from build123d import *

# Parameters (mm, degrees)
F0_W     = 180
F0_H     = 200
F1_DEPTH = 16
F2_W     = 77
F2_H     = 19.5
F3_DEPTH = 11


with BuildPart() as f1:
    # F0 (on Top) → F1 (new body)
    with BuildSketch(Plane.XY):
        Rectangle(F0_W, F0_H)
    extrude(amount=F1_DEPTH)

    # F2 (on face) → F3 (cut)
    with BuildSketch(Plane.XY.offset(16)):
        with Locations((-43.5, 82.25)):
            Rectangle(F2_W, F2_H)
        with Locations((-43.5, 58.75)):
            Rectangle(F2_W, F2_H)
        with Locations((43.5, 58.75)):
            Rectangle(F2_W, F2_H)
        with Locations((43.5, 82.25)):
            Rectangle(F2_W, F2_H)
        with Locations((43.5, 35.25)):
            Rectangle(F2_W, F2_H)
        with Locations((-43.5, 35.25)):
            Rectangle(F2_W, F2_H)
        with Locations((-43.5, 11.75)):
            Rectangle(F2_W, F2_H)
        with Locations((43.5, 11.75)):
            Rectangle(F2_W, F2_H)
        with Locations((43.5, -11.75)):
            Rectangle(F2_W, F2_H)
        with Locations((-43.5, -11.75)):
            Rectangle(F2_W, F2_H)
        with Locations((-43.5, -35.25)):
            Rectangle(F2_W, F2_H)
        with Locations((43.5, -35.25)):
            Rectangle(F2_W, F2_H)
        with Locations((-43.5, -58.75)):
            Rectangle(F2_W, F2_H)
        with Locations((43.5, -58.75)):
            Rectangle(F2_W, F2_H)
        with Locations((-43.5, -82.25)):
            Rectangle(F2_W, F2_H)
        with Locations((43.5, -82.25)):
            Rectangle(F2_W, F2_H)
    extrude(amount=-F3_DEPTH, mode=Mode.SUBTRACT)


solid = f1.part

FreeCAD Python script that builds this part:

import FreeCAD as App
import Part
import Sketcher
from FreeCAD import Vector

doc = App.newDocument("Part")
body = doc.addObject("PartDesign::Body", "Body")

sketch1 = doc.addObject("Sketcher::SketchObject", "Sketch")
body.addObject(sketch1)
sketch1.AttachmentSupport = (doc.XY_Plane, [""])
sketch1.MapMode = "FlatFace"
sketch1.addGeometry([
    Part.LineSegment(Vector(-90, 100, 0), Vector(-90, -100, 0)),
    Part.LineSegment(Vector(-90, -100, 0), Vector(90, -100, 0)),
    Part.LineSegment(Vector(90, -100, 0), Vector(90, 100, 0)),
    Part.LineSegment(Vector(90, 100, 0), Vector(-90, 100, 0)),
], False)
sketch1.addConstraint([
    Sketcher.Constraint("Coincident", 0, 2, 1, 1),
    Sketcher.Constraint("Coincident", 1, 2, 2, 1),
    Sketcher.Constraint("Coincident", 2, 2, 3, 1),
    Sketcher.Constraint("Coincident", 3, 2, 0, 1),
    Sketcher.Constraint("Vertical", 0),
    Sketcher.Constraint("Horizontal", 1),
    Sketcher.Constraint("Vertical", 2),
    Sketcher.Constraint("Horizontal", 3),
    Sketcher.Constraint("Symmetric", 0, 2, 2, 2, -1, 1),
    Sketcher.Constraint("DistanceX", 1, 1, 1, 2, 180.0),
    Sketcher.Constraint("DistanceY", 0, 2, 0, 1, 200.0),
])
pad1 = doc.addObject("PartDesign::Pad", "Pad")
body.addObject(pad1)
pad1.Profile = sketch1
pad1.Length = 16

sketch2 = doc.addObject("Sketcher::SketchObject", "Sketch001")
body.addObject(sketch2)
sketch2.AttachmentSupport = (doc.XY_Plane, [""])
sketch2.MapMode = "FlatFace"
sketch2.AttachmentOffset = App.Placement(Vector(0, 0, 16), App.Rotation())
sketch2.addGeometry([
    Part.LineSegment(Vector(-82, 92, 0), Vector(-82, 72, 0)),
    Part.LineSegment(Vector(-82, 72, 0), Vector(-5, 72, 0)),
    Part.LineSegment(Vector(-5, 72, 0), Vector(-5, 92, 0)),
    Part.LineSegment(Vector(-5, 92, 0), Vector(-82, 92, 0)),
    Part.LineSegment(Vector(-82, 68, 0), Vector(-82, 49, 0)),
    Part.LineSegment(Vector(-82, 49, 0), Vector(-5, 49, 0)),
    Part.LineSegment(Vector(-5, 49, 0), Vector(-5, 68, 0)),
    Part.LineSegment(Vector(-5, 68, 0), Vector(-82, 68, 0)),
    Part.LineSegment(Vector(5, 68, 0), Vector(5, 49, 0)),
    Part.LineSegment(Vector(5, 49, 0), Vector(82, 49, 0)),
    Part.LineSegment(Vector(82, 49, 0), Vector(82, 68, 0)),
    Part.LineSegment(Vector(82, 68, 0), Vector(5, 68, 0)),
    Part.LineSegment(Vector(5, 92, 0), Vector(5, 72, 0)),
    Part.LineSegment(Vector(5, 72, 0), Vector(82, 72, 0)),
    Part.LineSegment(Vector(82, 72, 0), Vector(82, 92, 0)),
    Part.LineSegment(Vector(82, 92, 0), Vector(5, 92, 0)),
    Part.LineSegment(Vector(5, 45, 0), Vector(5, 26, 0)),
    Part.LineSegment(Vector(5, 26, 0), Vector(82, 26, 0)),
    Part.LineSegment(Vector(82, 26, 0), Vector(82, 45, 0)),
    Part.LineSegment(Vector(82, 45, 0), Vector(5, 45, 0)),
    Part.LineSegment(Vector(-82, 45, 0), Vector(-82, 26, 0)),
    Part.LineSegment(Vector(-82, 26, 0), Vector(-5, 26, 0)),
    Part.LineSegment(Vector(-5, 26, 0), Vector(-5, 45, 0)),
    Part.LineSegment(Vector(-5, 45, 0), Vector(-82, 45, 0)),
    Part.LineSegment(Vector(-82, 22, 0), Vector(-82, 2, 0)),
    Part.LineSegment(Vector(-82, 2, 0), Vector(-5, 2, 0)),
    Part.LineSegment(Vector(-5, 2, 0), Vector(-5, 22, 0)),
    Part.LineSegment(Vector(-5, 22, 0), Vector(-82, 22, 0)),
    Part.LineSegment(Vector(5, 22, 0), Vector(5, 2, 0)),
    Part.LineSegment(Vector(5, 2, 0), Vector(82, 2, 0)),
    Part.LineSegment(Vector(82, 2, 0), Vector(82, 22, 0)),
    Part.LineSegment(Vector(82, 22, 0), Vector(5, 22, 0)),
    Part.LineSegment(Vector(5, -2, 0), Vector(5, -22, 0)),
    Part.LineSegment(Vector(5, -22, 0), Vector(82, -22, 0)),
    Part.LineSegment(Vector(82, -22, 0), Vector(82, -2, 0)),
    Part.LineSegment(Vector(82, -2, 0), Vector(5, -2, 0)),
    Part.LineSegment(Vector(-82, -2, 0), Vector(-82, -22, 0)),
    Part.LineSegment(Vector(-82, -22, 0), Vector(-5, -22, 0)),
    Part.LineSegment(Vector(-5, -22, 0), Vector(-5, -2, 0)),
    Part.LineSegment(Vector(-5, -2, 0), Vector(-82, -2, 0)),
    Part.LineSegment(Vector(-82, -26, 0), Vector(-82, -45, 0)),
    Part.LineSegment(Vector(-82, -45, 0), Vector(-5, -45, 0)),
    Part.LineSegment(Vector(-5, -45, 0), Vector(-5, -26, 0)),
    Part.LineSegment(Vector(-5, -26, 0), Vector(-82, -26, 0)),
    Part.LineSegment(Vector(5, -26, 0), Vector(5, -45, 0)),
    Part.LineSegment(Vector(5, -45, 0), Vector(82, -45, 0)),
    Part.LineSegment(Vector(82, -45, 0), Vector(82, -26, 0)),
    Part.LineSegment(Vector(82, -26, 0), Vector(5, -26, 0)),
    Part.LineSegment(Vector(-82, -49, 0), Vector(-82, -68, 0)),
    Part.LineSegment(Vector(-82, -68, 0), Vector(-5, -68, 0)),
    Part.LineSegment(Vector(-5, -68, 0), Vector(-5, -49, 0)),
    Part.LineSegment(Vector(-5, -49, 0), Vector(-82, -49, 0)),
    Part.LineSegment(Vector(5, -49, 0), Vector(5, -68, 0)),
    Part.LineSegment(Vector(5, -68, 0), Vector(82, -68, 0)),
    Part.LineSegment(Vector(82, -68, 0), Vector(82, -49, 0)),
    Part.LineSegment(Vector(82, -49, 0), Vector(5, -49, 0)),
    Part.LineSegment(Vector(-82, -72, 0), Vector(-82, -92, 0)),
    Part.LineSegment(Vector(-82, -92, 0), Vector(-5, -92, 0)),
    Part.LineSegment(Vector(-5, -92, 0), Vector(-5, -72, 0)),
    Part.LineSegment(Vector(-5, -72, 0), Vector(-82, -72, 0)),
    Part.LineSegment(Vector(5, -72, 0), Vector(5, -92, 0)),
    Part.LineSegment(Vector(5, -92, 0), Vector(82, -92, 0)),
    Part.LineSegment(Vector(82, -92, 0), Vector(82, -72, 0)),
    Part.LineSegment(Vector(82, -72, 0), Vector(5, -72, 0)),
], False)
sketch2.addConstraint([
    Sketcher.Constraint("Coincident", 0, 2, 1, 1),
    Sketcher.Constraint("Coincident", 1, 2, 2, 1),
    Sketcher.Constraint("Coincident", 2, 2, 3, 1),
    Sketcher.Constraint("Coincident", 3, 2, 0, 1),
    Sketcher.Constraint("Coincident", 4, 2, 5, 1),
    Sketcher.Constraint("Coincident", 5, 2, 6, 1),
    Sketcher.Constraint("Coincident", 6, 2, 7, 1),
    Sketcher.Constraint("Coincident", 7, 2, 4, 1),
    Sketcher.Constraint("Coincident", 8, 2, 9, 1),
    Sketcher.Constraint("Coincident", 9, 2, 10, 1),
    Sketcher.Constraint("Coincident", 10, 2, 11, 1),
    Sketcher.Constraint("Coincident", 11, 2, 8, 1),
    Sketcher.Constraint("Coincident", 12, 2, 13, 1),
    Sketcher.Constraint("Coincident", 13, 2, 14, 1),
    Sketcher.Constraint("Coincident", 14, 2, 15, 1),
    Sketcher.Constraint("Coincident", 15, 2, 12, 1),
    Sketcher.Constraint("Coincident", 16, 2, 17, 1),
    Sketcher.Constraint("Coincident", 17, 2, 18, 1),
    Sketcher.Constraint("Coincident", 18, 2, 19, 1),
    Sketcher.Constraint("Coincident", 19, 2, 16, 1),
    Sketcher.Constraint("Coincident", 20, 2, 21, 1),
    Sketcher.Constraint("Coincident", 21, 2, 22, 1),
    Sketcher.Constraint("Coincident", 22, 2, 23, 1),
    Sketcher.Constraint("Coincident", 23, 2, 20, 1),
    Sketcher.Constraint("Coincident", 24, 2, 25, 1),
    Sketcher.Constraint("Coincident", 25, 2, 26, 1),
    Sketcher.Constraint("Coincident", 26, 2, 27, 1),
    Sketcher.Constraint("Coincident", 27, 2, 24, 1),
    Sketcher.Constraint("Coincident", 28, 2, 29, 1),
    Sketcher.Constraint("Coincident", 29, 2, 30, 1),
    Sketcher.Constraint("Coincident", 30, 2, 31, 1),
    Sketcher.Constraint("Coincident", 31, 2, 28, 1),
    Sketcher.Constraint("Coincident", 32, 2, 33, 1),
    Sketcher.Constraint("Coincident", 33, 2, 34, 1),
    Sketcher.Constraint("Coincident", 34, 2, 35, 1),
    Sketcher.Constraint("Coincident", 35, 2, 32, 1),
    Sketcher.Constraint("Coincident", 36, 2, 37, 1),
    Sketcher.Constraint("Coincident", 37, 2, 38, 1),
    Sketcher.Constraint("Coincident", 38, 2, 39, 1),
    Sketcher.Constraint("Coincident", 39, 2, 36, 1),
    Sketcher.Constraint("Coincident", 40, 2, 41, 1),
    Sketcher.Constraint("Coincident", 41, 2, 42, 1),
    Sketcher.Constraint("Coincident", 42, 2, 43, 1),
    Sketcher.Constraint("Coincident", 43, 2, 40, 1),
    Sketcher.Constraint("Coincident", 44, 2, 45, 1),
    Sketcher.Constraint("Coincident", 45, 2, 46, 1),
    Sketcher.Constraint("Coincident", 46, 2, 47, 1),
    Sketcher.Constraint("Coincident", 47, 2, 44, 1),
    Sketcher.Constraint("Coincident", 48, 2, 49, 1),
    Sketcher.Constraint("Coincident", 49, 2, 50, 1),
    Sketcher.Constraint("Coincident", 50, 2, 51, 1),
    Sketcher.Constraint("Coincident", 51, 2, 48, 1),
    Sketcher.Constraint("Coincident", 52, 2, 53, 1),
    Sketcher.Constraint("Coincident", 53, 2, 54, 1),
    Sketcher.Constraint("Coincident", 54, 2, 55, 1),
    Sketcher.Constraint("Coincident", 55, 2, 52, 1),
    Sketcher.Constraint("Coincident", 56, 2, 57, 1),
    Sketcher.Constraint("Coincident", 57, 2, 58, 1),
    Sketcher.Constraint("Coincident", 58, 2, 59, 1),
    Sketcher.Constraint("Coincident", 59, 2, 56, 1),
    Sketcher.Constraint("Coincident", 60, 2, 61, 1),
    Sketcher.Constraint("Coincident", 61, 2, 62, 1),
    Sketcher.Constraint("Coincident", 62, 2, 63, 1),
    Sketcher.Constraint("Coincident", 63, 2, 60, 1),
    Sketcher.Constraint("Vertical", 0),
    Sketcher.Constraint("Horizontal", 1),
    Sketcher.Constraint("Vertical", 2),
    Sketcher.Constraint("Horizontal", 3),
    Sketcher.Constraint("Vertical", 4),
    Sketcher.Constraint("Horizontal", 5),
    Sketcher.Constraint("Vertical", 6),
    Sketcher.Constraint("Horizontal", 7),
    Sketcher.Constraint("Vertical", 8),
    Sketcher.Constraint("Horizontal", 9),
    Sketcher.Constraint("Vertical", 10),
    Sketcher.Constraint("Horizontal", 11),
    Sketcher.Constraint("Vertical", 12),
    Sketcher.Constraint("Horizontal", 13),
    Sketcher.Constraint("Vertical", 14),
    Sketcher.Constraint("Horizontal", 15),
    Sketcher.Constraint("Vertical", 16),
    Sketcher.Constraint("Horizontal", 17),
    Sketcher.Constraint("Vertical", 18),
    Sketcher.Constraint("Horizontal", 19),
    Sketcher.Constraint("Vertical", 20),
    Sketcher.Constraint("Horizontal", 21),
    Sketcher.Constraint("Vertical", 22),
    Sketcher.Constraint("Horizontal", 23),
    Sketcher.Constraint("Vertical", 24),
    Sketcher.Constraint("Horizontal", 25),
    Sketcher.Constraint("Vertical", 26),
    Sketcher.Constraint("Horizontal", 27),
    Sketcher.Constraint("Vertical", 28),
    Sketcher.Constraint("Horizontal", 29),
    Sketcher.Constraint("Vertical", 30),
    Sketcher.Constraint("Horizontal", 31),
    Sketcher.Constraint("Vertical", 32),
    Sketcher.Constraint("Horizontal", 33),
    Sketcher.Constraint("Vertical", 34),
    Sketcher.Constraint("Horizontal", 35),
    Sketcher.Constraint("Vertical", 36),
    Sketcher.Constraint("Horizontal", 37),
    Sketcher.Constraint("Vertical", 38),
    Sketcher.Constraint("Horizontal", 39),
    Sketcher.Constraint("Vertical", 40),
    Sketcher.Constraint("Horizontal", 41),
    Sketcher.Constraint("Vertical", 42),
    Sketcher.Constraint("Horizontal", 43),
    Sketcher.Constraint("Vertical", 44),
    Sketcher.Constraint("Horizontal", 45),
    Sketcher.Constraint("Vertical", 46),
    Sketcher.Constraint("Horizontal", 47),
    Sketcher.Constraint("Vertical", 48),
    Sketcher.Constraint("Horizontal", 49),
    Sketcher.Constraint("Vertical", 50),
    Sketcher.Constraint("Horizontal", 51),
    Sketcher.Constraint("Vertical", 52),
    Sketcher.Constraint("Horizontal", 53),
    Sketcher.Constraint("Vertical", 54),
    Sketcher.Constraint("Horizontal", 55),
    Sketcher.Constraint("Vertical", 56),
    Sketcher.Constraint("Horizontal", 57),
    Sketcher.Constraint("Vertical", 58),
    Sketcher.Constraint("Horizontal", 59),
    Sketcher.Constraint("Vertical", 60),
    Sketcher.Constraint("Horizontal", 61),
    Sketcher.Constraint("Vertical", 62),
    Sketcher.Constraint("Horizontal", 63),
    Sketcher.Constraint("Symmetric", 26, 2, 32, 2, -1, 1),
    Sketcher.Constraint("Symmetric", 24, 2, 34, 2, -1, 1),
    Sketcher.Constraint("Symmetric", 30, 2, 36, 2, -1, 1),
    Sketcher.Constraint("Symmetric", 28, 2, 38, 2, -1, 1),
    Sketcher.Constraint("Symmetric", 18, 2, 40, 2, -1, 1),
    Sketcher.Constraint("Symmetric", 16, 2, 42, 2, -1, 1),
    Sketcher.Constraint("Symmetric", 22, 2, 44, 2, -1, 1),
    Sketcher.Constraint("Symmetric", 20, 2, 46, 2, -1, 1),
    Sketcher.Constraint("Symmetric", 10, 2, 48, 2, -1, 1),
    Sketcher.Constraint("Symmetric", 8, 2, 50, 2, -1, 1),
    Sketcher.Constraint("Symmetric", 6, 2, 52, 2, -1, 1),
    Sketcher.Constraint("Symmetric", 4, 2, 54, 2, -1, 1),
    Sketcher.Constraint("Symmetric", 14, 2, 56, 2, -1, 1),
    Sketcher.Constraint("Symmetric", 12, 2, 58, 2, -1, 1),
    Sketcher.Constraint("Symmetric", 2, 2, 60, 2, -1, 1),
    Sketcher.Constraint("Symmetric", 0, 2, 62, 2, -1, 1),
    Sketcher.Constraint("Symmetric", 5, 2, 8, 2, -2),
    Sketcher.Constraint("Symmetric", 7, 2, 10, 2, -2),
    Sketcher.Constraint("Symmetric", 1, 2, 12, 2, -2),
    Sketcher.Constraint("Symmetric", 3, 2, 14, 2, -2),
    Sketcher.Constraint("Symmetric", 17, 2, 20, 2, -2),
    Sketcher.Constraint("Symmetric", 19, 2, 22, 2, -2),
    Sketcher.Constraint("Symmetric", 25, 2, 28, 2, -2),
    Sketcher.Constraint("Symmetric", 27, 2, 30, 2, -2),
    Sketcher.Constraint("Vertical", 3, 2, 4, 2),
    Sketcher.Constraint("Vertical", 2, 2, 5, 2),
    Sketcher.Constraint("Vertical", 15, 2, 16, 2),
    Sketcher.Constraint("Vertical", 14, 2, 17, 2),
    Sketcher.Constraint("Vertical", 23, 2, 24, 2),
    Sketcher.Constraint("Vertical", 22, 2, 25, 2),
    Sketcher.Constraint("Equal", 2, 4),
    Sketcher.Constraint("Equal", 14, 16),
    Sketcher.Constraint("Equal", 22, 24),
    Sketcher.Constraint("DistanceX", 1, 1, 1, 2, 77.0),
    Sketcher.Constraint("DistanceY", 0, 2, 0, 1, 19.5),
    Sketcher.Constraint("DistanceX", 0, 2, -1, 1, 82.0),
    Sketcher.Constraint("DistanceY", -1, 1, 2, 2, 92.0),
    Sketcher.Constraint("DistanceY", -1, 1, 4, 2, 49.0),
    Sketcher.Constraint("DistanceY", -1, 1, 18, 2, 45.0),
    Sketcher.Constraint("DistanceY", -1, 1, 24, 2, 2.0),
])
pocket1 = doc.addObject("PartDesign::Pocket", "Pocket")
body.addObject(pocket1)
pocket1.Profile = sketch2
pocket1.Length = 11

doc.recompute()
